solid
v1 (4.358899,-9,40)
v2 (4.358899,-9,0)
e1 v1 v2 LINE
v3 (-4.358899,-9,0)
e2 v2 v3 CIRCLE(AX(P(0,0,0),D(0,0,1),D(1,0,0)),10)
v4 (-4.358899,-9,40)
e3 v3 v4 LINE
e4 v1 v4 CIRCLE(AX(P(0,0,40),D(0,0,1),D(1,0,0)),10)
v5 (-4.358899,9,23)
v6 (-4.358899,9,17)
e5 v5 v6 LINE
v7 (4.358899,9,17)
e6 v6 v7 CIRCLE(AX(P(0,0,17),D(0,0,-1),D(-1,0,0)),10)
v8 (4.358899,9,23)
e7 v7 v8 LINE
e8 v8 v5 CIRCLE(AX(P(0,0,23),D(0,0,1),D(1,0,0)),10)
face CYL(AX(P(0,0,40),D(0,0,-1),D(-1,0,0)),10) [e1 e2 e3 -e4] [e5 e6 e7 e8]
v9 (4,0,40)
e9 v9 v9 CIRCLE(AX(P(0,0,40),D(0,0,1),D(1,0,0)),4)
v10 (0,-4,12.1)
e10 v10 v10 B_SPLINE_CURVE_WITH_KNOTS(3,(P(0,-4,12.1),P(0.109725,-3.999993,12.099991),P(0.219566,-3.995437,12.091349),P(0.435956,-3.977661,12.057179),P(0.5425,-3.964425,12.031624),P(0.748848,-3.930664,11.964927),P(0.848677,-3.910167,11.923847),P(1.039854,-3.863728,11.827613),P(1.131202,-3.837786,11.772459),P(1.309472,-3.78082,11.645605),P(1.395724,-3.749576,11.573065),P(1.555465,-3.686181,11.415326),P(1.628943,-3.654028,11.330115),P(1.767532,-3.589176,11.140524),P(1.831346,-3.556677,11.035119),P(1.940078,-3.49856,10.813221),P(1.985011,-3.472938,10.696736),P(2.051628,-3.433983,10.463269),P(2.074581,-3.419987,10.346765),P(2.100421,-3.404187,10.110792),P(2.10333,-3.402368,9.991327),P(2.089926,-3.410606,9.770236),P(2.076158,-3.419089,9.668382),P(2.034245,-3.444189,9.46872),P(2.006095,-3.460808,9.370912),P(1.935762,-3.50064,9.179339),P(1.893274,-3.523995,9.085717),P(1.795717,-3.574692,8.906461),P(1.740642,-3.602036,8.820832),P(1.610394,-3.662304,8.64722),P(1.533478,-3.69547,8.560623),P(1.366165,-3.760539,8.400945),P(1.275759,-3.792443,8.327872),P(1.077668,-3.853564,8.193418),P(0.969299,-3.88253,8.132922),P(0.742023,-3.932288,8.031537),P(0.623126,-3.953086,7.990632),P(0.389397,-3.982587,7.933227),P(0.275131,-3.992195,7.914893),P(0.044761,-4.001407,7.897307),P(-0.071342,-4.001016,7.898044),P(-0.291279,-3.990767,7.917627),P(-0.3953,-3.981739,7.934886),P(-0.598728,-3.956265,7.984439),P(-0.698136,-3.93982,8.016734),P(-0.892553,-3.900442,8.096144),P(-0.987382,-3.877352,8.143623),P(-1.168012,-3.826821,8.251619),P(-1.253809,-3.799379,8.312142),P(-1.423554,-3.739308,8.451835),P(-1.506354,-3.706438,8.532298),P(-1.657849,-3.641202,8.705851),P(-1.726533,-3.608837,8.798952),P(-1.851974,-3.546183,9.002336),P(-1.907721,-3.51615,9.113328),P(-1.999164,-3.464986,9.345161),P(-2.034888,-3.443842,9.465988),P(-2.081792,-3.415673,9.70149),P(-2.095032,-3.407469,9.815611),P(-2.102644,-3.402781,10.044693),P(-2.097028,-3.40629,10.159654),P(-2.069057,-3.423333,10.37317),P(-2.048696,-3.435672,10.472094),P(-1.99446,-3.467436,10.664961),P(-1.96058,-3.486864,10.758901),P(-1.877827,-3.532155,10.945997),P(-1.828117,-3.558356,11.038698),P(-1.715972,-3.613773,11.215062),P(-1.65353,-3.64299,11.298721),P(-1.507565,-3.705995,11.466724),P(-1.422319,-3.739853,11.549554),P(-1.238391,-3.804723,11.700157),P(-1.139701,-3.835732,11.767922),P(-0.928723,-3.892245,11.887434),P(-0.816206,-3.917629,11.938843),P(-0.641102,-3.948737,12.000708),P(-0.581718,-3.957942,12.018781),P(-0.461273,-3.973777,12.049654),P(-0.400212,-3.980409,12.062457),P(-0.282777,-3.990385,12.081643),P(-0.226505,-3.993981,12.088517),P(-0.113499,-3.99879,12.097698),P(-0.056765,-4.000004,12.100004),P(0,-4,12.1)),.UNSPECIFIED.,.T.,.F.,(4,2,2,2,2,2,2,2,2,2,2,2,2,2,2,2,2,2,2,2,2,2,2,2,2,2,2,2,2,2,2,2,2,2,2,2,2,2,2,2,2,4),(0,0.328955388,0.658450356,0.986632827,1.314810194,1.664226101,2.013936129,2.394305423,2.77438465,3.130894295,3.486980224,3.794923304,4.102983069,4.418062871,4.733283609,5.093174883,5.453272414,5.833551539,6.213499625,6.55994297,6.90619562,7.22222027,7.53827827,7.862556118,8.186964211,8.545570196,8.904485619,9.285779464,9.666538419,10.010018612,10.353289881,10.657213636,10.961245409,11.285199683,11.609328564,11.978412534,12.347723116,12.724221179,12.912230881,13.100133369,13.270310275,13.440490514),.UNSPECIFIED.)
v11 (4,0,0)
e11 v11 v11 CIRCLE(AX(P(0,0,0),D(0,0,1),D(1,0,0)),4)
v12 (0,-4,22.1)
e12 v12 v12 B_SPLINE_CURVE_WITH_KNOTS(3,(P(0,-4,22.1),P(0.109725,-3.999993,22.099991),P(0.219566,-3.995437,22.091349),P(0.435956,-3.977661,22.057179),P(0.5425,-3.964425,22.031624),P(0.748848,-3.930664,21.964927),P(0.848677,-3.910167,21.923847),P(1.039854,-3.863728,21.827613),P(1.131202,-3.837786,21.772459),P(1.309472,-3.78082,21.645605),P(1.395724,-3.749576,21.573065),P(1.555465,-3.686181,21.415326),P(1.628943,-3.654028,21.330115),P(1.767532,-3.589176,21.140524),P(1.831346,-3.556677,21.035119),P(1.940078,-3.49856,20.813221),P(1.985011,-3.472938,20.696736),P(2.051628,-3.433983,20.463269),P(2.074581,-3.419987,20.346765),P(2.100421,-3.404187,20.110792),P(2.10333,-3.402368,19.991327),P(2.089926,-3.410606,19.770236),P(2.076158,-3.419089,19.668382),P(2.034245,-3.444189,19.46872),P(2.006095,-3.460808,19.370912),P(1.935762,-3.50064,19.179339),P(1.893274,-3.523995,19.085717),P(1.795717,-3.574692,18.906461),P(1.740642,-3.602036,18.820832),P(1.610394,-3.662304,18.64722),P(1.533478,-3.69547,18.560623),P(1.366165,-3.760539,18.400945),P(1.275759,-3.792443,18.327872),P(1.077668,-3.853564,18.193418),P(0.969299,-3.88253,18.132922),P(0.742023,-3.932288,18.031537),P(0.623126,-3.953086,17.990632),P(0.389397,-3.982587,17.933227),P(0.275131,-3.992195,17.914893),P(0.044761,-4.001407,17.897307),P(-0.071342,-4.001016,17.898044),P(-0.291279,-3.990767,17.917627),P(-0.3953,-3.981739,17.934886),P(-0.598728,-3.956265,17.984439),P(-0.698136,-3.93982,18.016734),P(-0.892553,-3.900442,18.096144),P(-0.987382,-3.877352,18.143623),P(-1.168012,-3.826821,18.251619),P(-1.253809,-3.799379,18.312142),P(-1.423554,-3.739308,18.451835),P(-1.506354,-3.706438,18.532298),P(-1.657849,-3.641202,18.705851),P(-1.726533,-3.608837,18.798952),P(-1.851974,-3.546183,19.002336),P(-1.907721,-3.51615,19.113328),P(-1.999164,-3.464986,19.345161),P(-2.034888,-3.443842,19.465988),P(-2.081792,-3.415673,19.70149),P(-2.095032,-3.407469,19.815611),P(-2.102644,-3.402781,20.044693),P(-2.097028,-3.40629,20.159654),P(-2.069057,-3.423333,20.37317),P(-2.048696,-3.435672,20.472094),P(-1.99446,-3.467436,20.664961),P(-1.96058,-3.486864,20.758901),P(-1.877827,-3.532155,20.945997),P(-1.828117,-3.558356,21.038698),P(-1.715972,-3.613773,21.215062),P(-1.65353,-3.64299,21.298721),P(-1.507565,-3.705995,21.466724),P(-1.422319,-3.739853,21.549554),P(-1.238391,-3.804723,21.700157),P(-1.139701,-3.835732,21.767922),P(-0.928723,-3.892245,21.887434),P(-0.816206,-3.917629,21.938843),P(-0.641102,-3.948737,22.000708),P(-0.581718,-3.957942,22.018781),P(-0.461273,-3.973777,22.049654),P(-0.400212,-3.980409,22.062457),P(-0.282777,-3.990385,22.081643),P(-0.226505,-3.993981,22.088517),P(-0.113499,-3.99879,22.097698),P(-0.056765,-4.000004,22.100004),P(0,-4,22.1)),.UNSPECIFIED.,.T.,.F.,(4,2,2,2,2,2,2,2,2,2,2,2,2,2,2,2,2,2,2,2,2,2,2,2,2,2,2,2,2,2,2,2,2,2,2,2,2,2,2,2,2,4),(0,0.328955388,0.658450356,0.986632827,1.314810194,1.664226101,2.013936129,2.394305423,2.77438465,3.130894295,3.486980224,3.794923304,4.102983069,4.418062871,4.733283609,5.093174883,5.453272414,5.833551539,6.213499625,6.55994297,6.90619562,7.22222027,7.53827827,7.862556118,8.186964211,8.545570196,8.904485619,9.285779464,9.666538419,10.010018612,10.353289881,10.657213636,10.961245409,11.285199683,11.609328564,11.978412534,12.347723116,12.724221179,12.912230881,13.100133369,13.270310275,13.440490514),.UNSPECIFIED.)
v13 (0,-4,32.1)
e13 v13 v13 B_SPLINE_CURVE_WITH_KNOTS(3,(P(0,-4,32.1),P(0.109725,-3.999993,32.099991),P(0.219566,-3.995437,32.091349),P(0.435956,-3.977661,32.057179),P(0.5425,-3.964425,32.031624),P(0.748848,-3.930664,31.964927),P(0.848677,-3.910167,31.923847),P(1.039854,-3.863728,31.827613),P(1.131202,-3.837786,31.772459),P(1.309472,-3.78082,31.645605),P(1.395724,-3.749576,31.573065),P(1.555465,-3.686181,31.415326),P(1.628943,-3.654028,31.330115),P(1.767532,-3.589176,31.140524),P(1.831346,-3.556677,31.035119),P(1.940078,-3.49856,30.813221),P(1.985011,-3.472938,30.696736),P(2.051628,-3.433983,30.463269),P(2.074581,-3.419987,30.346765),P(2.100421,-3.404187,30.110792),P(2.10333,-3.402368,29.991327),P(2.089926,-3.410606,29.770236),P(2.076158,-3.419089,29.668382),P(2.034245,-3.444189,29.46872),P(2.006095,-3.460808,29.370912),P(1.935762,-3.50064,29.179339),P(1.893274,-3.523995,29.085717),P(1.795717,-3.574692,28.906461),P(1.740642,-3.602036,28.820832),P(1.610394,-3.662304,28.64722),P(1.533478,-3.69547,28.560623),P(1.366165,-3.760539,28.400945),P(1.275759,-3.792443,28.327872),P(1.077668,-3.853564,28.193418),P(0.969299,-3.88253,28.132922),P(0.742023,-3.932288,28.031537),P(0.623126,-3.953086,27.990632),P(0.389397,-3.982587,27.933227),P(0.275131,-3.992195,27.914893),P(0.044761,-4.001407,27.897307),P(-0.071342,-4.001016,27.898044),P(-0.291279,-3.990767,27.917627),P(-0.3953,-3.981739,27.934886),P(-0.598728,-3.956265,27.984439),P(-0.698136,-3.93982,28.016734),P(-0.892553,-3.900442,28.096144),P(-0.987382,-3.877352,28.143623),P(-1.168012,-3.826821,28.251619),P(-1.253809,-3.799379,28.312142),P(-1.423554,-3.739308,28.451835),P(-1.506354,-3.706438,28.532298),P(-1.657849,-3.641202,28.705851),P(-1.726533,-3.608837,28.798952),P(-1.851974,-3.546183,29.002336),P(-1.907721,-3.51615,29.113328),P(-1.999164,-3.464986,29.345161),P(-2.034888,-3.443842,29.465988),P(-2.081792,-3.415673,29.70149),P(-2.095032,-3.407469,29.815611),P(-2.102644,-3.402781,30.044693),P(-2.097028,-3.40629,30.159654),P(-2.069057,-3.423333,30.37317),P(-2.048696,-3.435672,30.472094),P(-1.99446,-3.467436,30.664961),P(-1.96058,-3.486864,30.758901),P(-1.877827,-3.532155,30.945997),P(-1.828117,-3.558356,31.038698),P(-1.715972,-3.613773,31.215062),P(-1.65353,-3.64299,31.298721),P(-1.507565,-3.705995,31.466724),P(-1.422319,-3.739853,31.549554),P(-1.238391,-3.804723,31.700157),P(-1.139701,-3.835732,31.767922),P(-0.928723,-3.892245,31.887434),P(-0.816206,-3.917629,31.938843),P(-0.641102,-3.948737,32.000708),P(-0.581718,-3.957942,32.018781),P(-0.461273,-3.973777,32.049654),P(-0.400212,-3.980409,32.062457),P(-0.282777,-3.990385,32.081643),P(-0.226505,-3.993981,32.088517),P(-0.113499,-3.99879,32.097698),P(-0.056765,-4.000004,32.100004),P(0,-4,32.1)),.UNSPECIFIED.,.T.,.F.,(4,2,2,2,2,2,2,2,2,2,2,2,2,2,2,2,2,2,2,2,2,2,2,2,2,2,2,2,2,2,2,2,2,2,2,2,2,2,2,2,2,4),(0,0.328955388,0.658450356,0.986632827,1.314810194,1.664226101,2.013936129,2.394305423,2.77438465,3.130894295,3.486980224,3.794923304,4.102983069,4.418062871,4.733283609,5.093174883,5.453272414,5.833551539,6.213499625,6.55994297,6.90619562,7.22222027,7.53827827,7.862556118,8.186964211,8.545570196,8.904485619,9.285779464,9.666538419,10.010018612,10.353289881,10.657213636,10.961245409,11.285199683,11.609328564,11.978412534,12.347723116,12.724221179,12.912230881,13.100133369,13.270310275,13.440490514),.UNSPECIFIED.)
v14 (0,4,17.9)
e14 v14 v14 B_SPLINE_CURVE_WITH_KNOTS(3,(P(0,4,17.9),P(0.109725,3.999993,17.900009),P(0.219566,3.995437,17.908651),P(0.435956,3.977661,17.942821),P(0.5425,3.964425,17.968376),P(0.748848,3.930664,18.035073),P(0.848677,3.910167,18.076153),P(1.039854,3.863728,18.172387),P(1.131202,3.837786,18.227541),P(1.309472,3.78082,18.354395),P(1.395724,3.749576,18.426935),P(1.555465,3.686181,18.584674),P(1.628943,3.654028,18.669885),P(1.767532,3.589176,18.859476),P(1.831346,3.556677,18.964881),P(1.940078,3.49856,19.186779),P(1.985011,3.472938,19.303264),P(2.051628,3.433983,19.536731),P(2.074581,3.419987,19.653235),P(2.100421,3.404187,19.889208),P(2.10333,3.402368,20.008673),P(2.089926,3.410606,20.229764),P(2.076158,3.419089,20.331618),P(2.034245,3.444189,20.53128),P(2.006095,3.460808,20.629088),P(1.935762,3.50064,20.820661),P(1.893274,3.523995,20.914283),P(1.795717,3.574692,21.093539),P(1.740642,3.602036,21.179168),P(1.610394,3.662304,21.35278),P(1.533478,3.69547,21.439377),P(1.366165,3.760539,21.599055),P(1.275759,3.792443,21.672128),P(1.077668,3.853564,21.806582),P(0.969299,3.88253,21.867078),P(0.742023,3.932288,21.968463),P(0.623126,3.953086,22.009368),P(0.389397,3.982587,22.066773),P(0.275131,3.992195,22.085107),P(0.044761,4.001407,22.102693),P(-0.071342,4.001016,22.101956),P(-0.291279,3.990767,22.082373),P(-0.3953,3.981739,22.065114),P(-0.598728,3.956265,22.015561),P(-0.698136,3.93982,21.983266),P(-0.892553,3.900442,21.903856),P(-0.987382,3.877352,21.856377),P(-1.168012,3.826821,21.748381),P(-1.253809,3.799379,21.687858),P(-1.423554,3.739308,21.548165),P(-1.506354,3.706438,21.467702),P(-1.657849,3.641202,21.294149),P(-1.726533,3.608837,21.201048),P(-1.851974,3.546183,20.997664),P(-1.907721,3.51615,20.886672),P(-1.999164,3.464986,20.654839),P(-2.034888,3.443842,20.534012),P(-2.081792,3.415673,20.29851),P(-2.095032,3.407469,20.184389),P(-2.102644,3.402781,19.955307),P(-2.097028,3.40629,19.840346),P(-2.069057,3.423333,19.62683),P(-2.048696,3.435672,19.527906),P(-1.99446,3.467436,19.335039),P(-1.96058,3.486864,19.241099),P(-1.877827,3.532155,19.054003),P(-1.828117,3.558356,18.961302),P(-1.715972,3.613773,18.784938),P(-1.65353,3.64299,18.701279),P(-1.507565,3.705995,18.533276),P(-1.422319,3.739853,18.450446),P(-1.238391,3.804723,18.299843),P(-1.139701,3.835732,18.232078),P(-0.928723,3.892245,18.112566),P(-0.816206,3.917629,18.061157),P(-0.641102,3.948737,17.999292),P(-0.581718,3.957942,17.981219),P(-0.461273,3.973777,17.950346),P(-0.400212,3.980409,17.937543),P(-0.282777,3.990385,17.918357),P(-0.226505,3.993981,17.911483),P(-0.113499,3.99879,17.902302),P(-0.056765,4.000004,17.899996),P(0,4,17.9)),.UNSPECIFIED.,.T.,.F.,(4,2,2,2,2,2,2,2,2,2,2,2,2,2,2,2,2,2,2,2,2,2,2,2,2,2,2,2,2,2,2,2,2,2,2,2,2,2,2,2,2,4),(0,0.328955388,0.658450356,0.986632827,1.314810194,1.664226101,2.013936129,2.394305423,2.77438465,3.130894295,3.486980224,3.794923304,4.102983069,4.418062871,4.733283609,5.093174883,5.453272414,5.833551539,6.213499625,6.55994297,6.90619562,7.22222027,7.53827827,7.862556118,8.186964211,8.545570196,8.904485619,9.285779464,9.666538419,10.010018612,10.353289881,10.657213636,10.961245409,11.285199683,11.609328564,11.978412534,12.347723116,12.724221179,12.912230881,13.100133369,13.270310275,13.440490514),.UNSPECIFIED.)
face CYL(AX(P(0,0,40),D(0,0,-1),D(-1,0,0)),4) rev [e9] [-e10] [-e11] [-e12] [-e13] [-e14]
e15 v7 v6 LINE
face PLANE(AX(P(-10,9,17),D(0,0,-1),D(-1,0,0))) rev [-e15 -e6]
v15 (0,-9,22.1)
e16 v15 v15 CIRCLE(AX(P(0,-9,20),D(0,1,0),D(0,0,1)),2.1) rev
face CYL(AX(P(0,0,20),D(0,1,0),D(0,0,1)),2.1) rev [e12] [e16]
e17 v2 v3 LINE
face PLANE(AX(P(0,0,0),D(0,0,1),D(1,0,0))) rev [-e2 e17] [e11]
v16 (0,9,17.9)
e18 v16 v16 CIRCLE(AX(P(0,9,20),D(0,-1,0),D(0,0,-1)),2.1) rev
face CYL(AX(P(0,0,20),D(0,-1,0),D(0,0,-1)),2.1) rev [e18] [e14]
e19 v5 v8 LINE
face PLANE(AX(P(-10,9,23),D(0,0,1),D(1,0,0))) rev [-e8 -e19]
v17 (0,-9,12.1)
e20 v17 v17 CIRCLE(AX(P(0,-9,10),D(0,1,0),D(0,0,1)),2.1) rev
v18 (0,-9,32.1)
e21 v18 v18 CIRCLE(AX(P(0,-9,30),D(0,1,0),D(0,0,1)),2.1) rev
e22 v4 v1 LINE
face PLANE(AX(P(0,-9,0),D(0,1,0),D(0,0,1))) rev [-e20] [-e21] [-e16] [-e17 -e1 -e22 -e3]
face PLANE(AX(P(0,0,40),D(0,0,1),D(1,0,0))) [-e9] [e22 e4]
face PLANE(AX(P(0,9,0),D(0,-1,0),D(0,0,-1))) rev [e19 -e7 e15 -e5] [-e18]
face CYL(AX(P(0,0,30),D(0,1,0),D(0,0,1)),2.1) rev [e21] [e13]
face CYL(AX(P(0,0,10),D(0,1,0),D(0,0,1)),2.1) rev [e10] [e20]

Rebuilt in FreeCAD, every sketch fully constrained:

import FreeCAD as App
import Part
import Sketcher
from FreeCAD import Vector
Q = App.Units.Quantity

doc = App.newDocument("Part")
body = doc.addObject("PartDesign::Body", "Body")

sketch1 = body.newObject("Sketcher::SketchObject", "Sketch")
sketch1.AttachmentSupport = (doc.getObject("XY_Plane"), [""])
sketch1.MapMode = "FlatFace"
sketch1.addGeometry([
    Part.Circle(Vector(0, 0, 0), Vector(0, 0, 1), 10),
    Part.Circle(Vector(0, 0, 0), Vector(0, 0, 1), 4),
], False)
sketch1.addConstraint([
    Sketcher.Constraint("Coincident", 0, 3, -1, 1),
    Sketcher.Constraint("Coincident", 1, 3, -1, 1),
    Sketcher.Constraint("Diameter", 0, Q("20 mm")),
    Sketcher.Constraint("Diameter", 1, Q("8 mm")),
])
pad1 = body.newObject("PartDesign::Pad", "Pad")
pad1.Profile = sketch1
pad1.Length = 40

sketch2 = body.newObject("Sketcher::SketchObject", "Sketch001")
sketch2.AttachmentSupport = (doc.getObject("YZ_Plane"), [""])
sketch2.MapMode = "FlatFace"
sketch2.addGeometry([
    Part.LineSegment(Vector(10, 20, 0), Vector(0, 20, 0)),
    Part.LineSegment(Vector(0, 20, 0), Vector(0, 17.9, 0)),
    Part.LineSegment(Vector(0, 17.9, 0), Vector(10, 17.9, 0)),
    Part.LineSegment(Vector(10, 17.9, 0), Vector(10, 20, 0)),
], False)
sketch2.addGeometry(Part.LineSegment(Vector(0, 20, 0), Vector(10, 20, 0)), True)
sketch2.addConstraint([
    Sketcher.Constraint("Coincident", 0, 2, 1, 1),
    Sketcher.Constraint("Coincident", 1, 2, 2, 1),
    Sketcher.Constraint("Coincident", 2, 2, 3, 1),
    Sketcher.Constraint("Coincident", 3, 2, 0, 1),
    Sketcher.Constraint("Horizontal", 0),
    Sketcher.Constraint("Vertical", 1),
    Sketcher.Constraint("Horizontal", 2),
    Sketcher.Constraint("Vertical", 3),
    Sketcher.Constraint("Horizontal", 4),
    Sketcher.Constraint("Coincident", 4, 1, 0, 2),
    Sketcher.Constraint("PointOnObject", 0, 2, -2),
    Sketcher.Constraint("Vertical", 2, 2, 4, 2),
    Sketcher.Constraint("DistanceX", 0, 2, 0, 1, Q("10 mm")),
    Sketcher.Constraint("DistanceY", 1, 2, 1, 1, Q("2.1 mm")),
    Sketcher.Constraint("DistanceY", -1, 1, 0, 2, Q("20 mm")),
])
groove = body.newObject("PartDesign::Groove", "Groove")
groove.Profile = sketch2
groove.ReferenceAxis = (sketch2, ["Axis0"])
groove.Angle = 360

sketch3 = body.newObject("Sketcher::SketchObject", "Sketch002")
sketch3.AttachmentSupport = (doc.getObject("XZ_Plane"), [""])
sketch3.MapMode = "FlatFace"
sketch3.AttachmentOffset = App.Placement(Vector(0, 0, -10), App.Rotation())
sketch3.addGeometry([
    Part.LineSegment(Vector(-10, 17, 0), Vector(-10, 23, 0)),
    Part.LineSegment(Vector(-10, 23, 0), Vector(10, 23, 0)),
    Part.LineSegment(Vector(10, 23, 0), Vector(10, 17, 0)),
    Part.LineSegment(Vector(10, 17, 0), Vector(-10, 17, 0)),
], False)
sketch3.addConstraint([
    Sketcher.Constraint("Coincident", 0, 2, 1, 1),
    Sketcher.Constraint("Coincident", 1, 2, 2, 1),
    Sketcher.Constraint("Coincident", 2, 2, 3, 1),
    Sketcher.Constraint("Coincident", 3, 2, 0, 1),
    Sketcher.Constraint("Vertical", 0),
    Sketcher.Constraint("Horizontal", 1),
    Sketcher.Constraint("Vertical", 2),
    Sketcher.Constraint("Horizontal", 3),
    Sketcher.Constraint("DistanceX", 1, 1, 1, 2, Q("20 mm")),
    Sketcher.Constraint("DistanceY", 0, 1, 0, 2, Q("6 mm")),
    Sketcher.Constraint("DistanceX", 0, 2, -1, 1, Q("10 mm")),
    Sketcher.Constraint("DistanceY", -1, 1, 0, 2, Q("23 mm")),
])
pocket1 = body.newObject("PartDesign::Pocket", "Pocket")
pocket1.Profile = sketch3
pocket1.Length = 1
pocket1.Reversed = True

sketch4 = body.newObject("Sketcher::SketchObject", "Sketch003")
sketch4.AttachmentSupport = (doc.getObject("YZ_Plane"), [""])
sketch4.MapMode = "FlatFace"
sketch4.addGeometry([
    Part.LineSegment(Vector(-10, 30, 0), Vector(0, 30, 0)),
    Part.LineSegment(Vector(0, 30, 0), Vector(0, 32.1, 0)),
    Part.LineSegment(Vector(0, 32.1, 0), Vector(-10, 32.1, 0)),
    Part.LineSegment(Vector(-10, 32.1, 0), Vector(-10, 30, 0)),
], False)
sketch4.addGeometry(Part.LineSegment(Vector(0, 30, 0), Vector(-10, 30, 0)), True)
sketch4.addConstraint([
    Sketcher.Constraint("Coincident", 0, 2, 1, 1),
    Sketcher.Constraint("Coincident", 1, 2, 2, 1),
    Sketcher.Constraint("Coincident", 2, 2, 3, 1),
    Sketcher.Constraint("Coincident", 3, 2, 0, 1),
    Sketcher.Constraint("Horizontal", 0),
    Sketcher.Constraint("Vertical", 1),
    Sketcher.Constraint("Horizontal", 2),
    Sketcher.Constraint("Vertical", 3),
    Sketcher.Constraint("Horizontal", 4),
    Sketcher.Constraint("Coincident", 4, 1, 0, 2),
    Sketcher.Constraint("PointOnObject", 0, 2, -2),
    Sketcher.Constraint("Vertical", 2, 2, 4, 2),
    Sketcher.Constraint("DistanceX", 0, 1, 0, 2, Q("10 mm")),
    Sketcher.Constraint("DistanceY", 1, 1, 1, 2, Q("2.1 mm")),
    Sketcher.Constraint("DistanceY", -1, 1, 0, 2, Q("30 mm")),
])
groove2 = body.newObject("PartDesign::Groove", "Groove001")
groove2.Profile = sketch4
groove2.ReferenceAxis = (sketch4, ["Axis0"])
groove2.Angle = 360
doc.recompute()

linearpattern = body.newObject("PartDesign::LinearPattern", "LinearPattern")
linearpattern.Originals = [groove2]
linearpattern.Direction = (doc.getObject("Z_Axis"), [""])
linearpattern.Mode = "offset"
linearpattern.Offset = 10
linearpattern.Occurrences = 2
linearpattern.Reversed = True
body.Tip = linearpattern
doc.recompute()

linearpattern2 = body.newObject("PartDesign::LinearPattern", "LinearPattern001")
linearpattern2.Originals = [groove2]
linearpattern2.Direction = (doc.getObject("Z_Axis"), [""])
linearpattern2.Mode = "offset"
linearpattern2.Offset = 20
linearpattern2.Occurrences = 2
linearpattern2.Reversed = True
body.Tip = linearpattern2

sketch5 = body.newObject("Sketcher::SketchObject", "Sketch004")
sketch5.AttachmentSupport = (doc.getObject("XZ_Plane"), [""])
sketch5.MapMode = "FlatFace"
sketch5.AttachmentOffset = App.Placement(Vector(0, 0, 10), App.Rotation())
sketch5.addGeometry([
    Part.LineSegment(Vector(-10, 0, 0), Vector(-10, 40, 0)),
    Part.LineSegment(Vector(-10, 40, 0), Vector(10, 40, 0)),
    Part.LineSegment(Vector(10, 40, 0), Vector(10, 0, 0)),
    Part.LineSegment(Vector(10, 0, 0), Vector(-10, 0, 0)),
], False)
sketch5.addConstraint([
    Sketcher.Constraint("Coincident", 0, 2, 1, 1),
    Sketcher.Constraint("Coincident", 1, 2, 2, 1),
    Sketcher.Constraint("Coincident", 2, 2, 3, 1),
    Sketcher.Constraint("Coincident", 3, 2, 0, 1),
    Sketcher.Constraint("Vertical", 0),
    Sketcher.Constraint("Horizontal", 1),
    Sketcher.Constraint("Vertical", 2),
    Sketcher.Constraint("Horizontal", 3),
    Sketcher.Constraint("Symmetric", 2, 2, 3, 2, -1, 1),
    Sketcher.Constraint("DistanceX", 1, 1, 1, 2, Q("20 mm")),
    Sketcher.Constraint("DistanceY", 0, 1, 0, 2, Q("40 mm")),
])
pocket2 = body.newObject("PartDesign::Pocket", "Pocket001")
pocket2.Profile = sketch5
pocket2.Length = 1

doc.recompute()
